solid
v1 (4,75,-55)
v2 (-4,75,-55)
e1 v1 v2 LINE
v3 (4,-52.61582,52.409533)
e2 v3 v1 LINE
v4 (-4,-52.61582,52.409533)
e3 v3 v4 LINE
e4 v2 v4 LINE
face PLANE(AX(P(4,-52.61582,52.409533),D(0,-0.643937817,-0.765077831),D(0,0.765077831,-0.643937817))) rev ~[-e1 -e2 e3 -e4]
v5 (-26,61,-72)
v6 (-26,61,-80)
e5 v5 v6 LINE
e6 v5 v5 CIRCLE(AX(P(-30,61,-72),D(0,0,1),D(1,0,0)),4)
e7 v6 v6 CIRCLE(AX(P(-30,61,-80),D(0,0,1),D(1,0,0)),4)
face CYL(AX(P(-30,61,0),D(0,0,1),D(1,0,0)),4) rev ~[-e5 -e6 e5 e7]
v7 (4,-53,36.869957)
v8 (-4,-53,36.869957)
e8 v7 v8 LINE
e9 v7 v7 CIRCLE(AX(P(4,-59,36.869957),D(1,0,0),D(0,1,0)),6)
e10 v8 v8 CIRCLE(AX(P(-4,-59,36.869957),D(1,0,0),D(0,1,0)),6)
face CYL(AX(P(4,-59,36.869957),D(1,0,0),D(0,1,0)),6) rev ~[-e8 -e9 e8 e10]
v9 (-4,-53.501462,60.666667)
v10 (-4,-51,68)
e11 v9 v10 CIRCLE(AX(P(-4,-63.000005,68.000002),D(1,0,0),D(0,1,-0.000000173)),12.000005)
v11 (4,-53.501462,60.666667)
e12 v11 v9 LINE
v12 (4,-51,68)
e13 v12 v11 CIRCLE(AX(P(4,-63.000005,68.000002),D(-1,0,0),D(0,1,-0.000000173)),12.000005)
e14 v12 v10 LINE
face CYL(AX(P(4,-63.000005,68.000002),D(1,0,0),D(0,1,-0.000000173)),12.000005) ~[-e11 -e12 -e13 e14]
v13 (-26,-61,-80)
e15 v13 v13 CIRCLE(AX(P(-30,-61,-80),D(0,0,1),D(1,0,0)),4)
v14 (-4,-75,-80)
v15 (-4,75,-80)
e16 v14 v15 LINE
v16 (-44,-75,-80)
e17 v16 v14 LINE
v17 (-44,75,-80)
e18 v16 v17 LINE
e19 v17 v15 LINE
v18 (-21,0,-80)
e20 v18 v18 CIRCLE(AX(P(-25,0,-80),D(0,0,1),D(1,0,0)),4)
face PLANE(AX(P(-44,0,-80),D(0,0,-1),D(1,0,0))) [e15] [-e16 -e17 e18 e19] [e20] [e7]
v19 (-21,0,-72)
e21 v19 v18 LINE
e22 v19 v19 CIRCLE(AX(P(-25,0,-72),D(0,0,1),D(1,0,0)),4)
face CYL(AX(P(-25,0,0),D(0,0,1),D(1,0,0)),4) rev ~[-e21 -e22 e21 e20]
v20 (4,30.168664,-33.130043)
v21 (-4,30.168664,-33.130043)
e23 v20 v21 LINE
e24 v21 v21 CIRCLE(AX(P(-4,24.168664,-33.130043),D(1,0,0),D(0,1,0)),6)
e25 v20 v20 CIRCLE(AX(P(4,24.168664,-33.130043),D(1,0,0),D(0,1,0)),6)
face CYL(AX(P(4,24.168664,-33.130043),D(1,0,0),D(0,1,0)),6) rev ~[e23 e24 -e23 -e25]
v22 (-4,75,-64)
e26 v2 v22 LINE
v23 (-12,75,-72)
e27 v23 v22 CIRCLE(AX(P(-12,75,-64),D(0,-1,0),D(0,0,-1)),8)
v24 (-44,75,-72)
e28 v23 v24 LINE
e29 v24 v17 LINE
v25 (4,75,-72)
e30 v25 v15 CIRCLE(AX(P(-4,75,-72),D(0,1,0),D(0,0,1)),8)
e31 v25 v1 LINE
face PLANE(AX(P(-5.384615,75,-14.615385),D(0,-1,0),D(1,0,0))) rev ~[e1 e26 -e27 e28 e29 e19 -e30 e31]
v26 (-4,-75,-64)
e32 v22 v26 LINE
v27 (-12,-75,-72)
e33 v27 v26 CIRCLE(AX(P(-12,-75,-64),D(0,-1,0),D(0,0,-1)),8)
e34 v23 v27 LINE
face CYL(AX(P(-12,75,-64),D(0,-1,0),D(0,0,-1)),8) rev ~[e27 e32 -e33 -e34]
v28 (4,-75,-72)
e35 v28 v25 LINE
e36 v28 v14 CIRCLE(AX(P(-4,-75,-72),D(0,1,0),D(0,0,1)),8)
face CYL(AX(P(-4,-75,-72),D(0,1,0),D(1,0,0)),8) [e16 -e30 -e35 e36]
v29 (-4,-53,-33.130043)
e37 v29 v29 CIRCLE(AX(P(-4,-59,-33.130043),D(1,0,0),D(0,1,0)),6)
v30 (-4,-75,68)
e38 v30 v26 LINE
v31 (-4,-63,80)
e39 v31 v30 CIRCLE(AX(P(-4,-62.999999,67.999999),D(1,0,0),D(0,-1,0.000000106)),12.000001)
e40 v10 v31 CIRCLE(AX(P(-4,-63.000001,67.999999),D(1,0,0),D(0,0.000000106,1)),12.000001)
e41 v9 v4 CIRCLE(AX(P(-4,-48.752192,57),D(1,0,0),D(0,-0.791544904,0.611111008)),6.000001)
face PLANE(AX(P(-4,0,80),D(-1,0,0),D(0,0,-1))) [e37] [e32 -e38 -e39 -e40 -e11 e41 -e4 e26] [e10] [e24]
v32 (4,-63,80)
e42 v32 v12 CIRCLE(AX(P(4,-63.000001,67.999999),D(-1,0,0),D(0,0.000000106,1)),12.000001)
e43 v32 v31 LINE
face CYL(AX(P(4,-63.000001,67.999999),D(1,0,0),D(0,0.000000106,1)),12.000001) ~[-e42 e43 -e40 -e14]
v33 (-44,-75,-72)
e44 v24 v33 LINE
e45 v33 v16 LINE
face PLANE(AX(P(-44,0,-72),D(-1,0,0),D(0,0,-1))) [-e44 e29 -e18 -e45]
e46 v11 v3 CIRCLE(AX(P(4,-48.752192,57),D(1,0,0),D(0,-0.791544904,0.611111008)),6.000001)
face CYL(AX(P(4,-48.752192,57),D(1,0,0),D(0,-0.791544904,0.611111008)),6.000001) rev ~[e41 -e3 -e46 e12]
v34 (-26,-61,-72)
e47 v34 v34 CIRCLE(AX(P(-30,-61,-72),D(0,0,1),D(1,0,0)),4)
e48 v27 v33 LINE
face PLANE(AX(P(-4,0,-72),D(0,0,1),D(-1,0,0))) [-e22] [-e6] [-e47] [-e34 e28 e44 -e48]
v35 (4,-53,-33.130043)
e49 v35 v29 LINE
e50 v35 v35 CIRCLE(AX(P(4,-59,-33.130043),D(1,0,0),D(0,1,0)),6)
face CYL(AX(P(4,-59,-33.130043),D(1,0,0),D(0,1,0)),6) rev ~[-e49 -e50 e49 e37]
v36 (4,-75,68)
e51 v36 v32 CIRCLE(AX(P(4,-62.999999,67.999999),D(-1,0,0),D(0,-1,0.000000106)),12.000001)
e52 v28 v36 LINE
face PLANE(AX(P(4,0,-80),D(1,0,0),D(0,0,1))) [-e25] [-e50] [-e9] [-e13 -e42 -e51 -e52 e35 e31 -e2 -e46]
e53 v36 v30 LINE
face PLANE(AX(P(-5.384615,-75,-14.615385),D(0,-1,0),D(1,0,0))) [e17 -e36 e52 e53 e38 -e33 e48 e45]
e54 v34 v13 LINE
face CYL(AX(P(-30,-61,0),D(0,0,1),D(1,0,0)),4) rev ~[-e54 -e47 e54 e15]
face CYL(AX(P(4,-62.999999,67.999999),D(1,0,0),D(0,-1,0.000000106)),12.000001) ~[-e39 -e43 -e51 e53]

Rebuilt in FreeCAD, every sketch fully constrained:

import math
import FreeCAD as App
import Part
import Sketcher

V = App.Vector
Q = App.Units.Quantity


def edges_at(feature, points):
    """Names of the edges that pass closest to the given points."""
    edges = feature.Shape.Edges
    near = lambda p: min(range(len(edges)), key=lambda i: edges[i].distToShape(Part.Vertex(*p))[0])
    return sorted({f"Edge{near(p) + 1}" for p in points})


def add_polygon(sketch, points):
    """Adds a closed chain of lines whose ends are joined by coincident constraints."""
    first, n = sketch.GeometryCount, len(points)
    for a, b in zip(points, points[1:] + points[:1]):
        sketch.addGeometry(Part.LineSegment(App.Vector(*a, 0), App.Vector(*b, 0)), False)
    for i in range(n):
        sketch.addConstraint(Sketcher.Constraint("Coincident", first + i, 2, first + (i + 1) % n, 1))

doc = App.newDocument("Part")
params = doc.addObject("Spreadsheet::Sheet", "Params")
for row, (alias, value) in enumerate([
    ("sketch1_width", "8 mm"),
    ("sketch1_width2", "40 mm"),
    ("sketch1_height", "152 mm"),
    ("pad1_length", "150 mm"),
    ("fillet_radius", "8 mm"),
    ("sketch2_diameter", "12 mm"),
    ("sketch2_radius", "12.000001 mm"),
    ("sketch2_width", "138 mm"),
    ("sketch2_height", "135 mm"),
    ("sketch3_diameter", "8 mm"),
], start=1):
    params.set(f"A{row}", alias)
    params.set(f"B{row}", "=" + value)
    params.setAlias(f"B{row}", alias)

body = doc.addObject("PartDesign::Body", "Body")

# Sketch on XZ plane
sketch1 = body.newObject("Sketcher::SketchObject", "Sketch")
sketch1.AttachmentSupport = (doc.getObject("XZ_Plane"), [""])
sketch1.MapMode = "FlatFace"
add_polygon(sketch1, [(4, 80), (-4, 80), (-4, -72), (-44, -72), (-44, -80), (4, -80)])  # lines 0-5
sketch1.addConstraint([
    Sketcher.Constraint("Horizontal", 0),
    Sketcher.Constraint("Vertical", 1),
    Sketcher.Constraint("Horizontal", 2),
    Sketcher.Constraint("Vertical", 3),
    Sketcher.Constraint("Horizontal", 4),
    Sketcher.Constraint("Vertical", 5),
    Sketcher.Constraint("Symmetric", 0, 2, 4, 2, -1, 1),
    Sketcher.Constraint("Equal", 0, 3),
    Sketcher.Constraint("DistanceX", 0, 2, 0, 1, Q("8 mm")),
    Sketcher.Constraint("DistanceX", 2, 2, 2, 1, Q("40 mm")),
    Sketcher.Constraint("DistanceY", 1, 2, 1, 1, Q("152 mm")),
])
sketch1.setExpression("Constraints[14]", "Params.sketch1_width")
sketch1.setExpression("Constraints[15]", "Params.sketch1_width2")
sketch1.setExpression("Constraints[16]", "Params.sketch1_height")
pad1 = body.newObject("PartDesign::Pad", "Pad")
pad1.Profile = sketch1
pad1.setExpression("Length", "Params.pad1_length")
pad1.Midplane = True
doc.recompute()

fillet = body.newObject("PartDesign::Fillet", "Fillet")
fillet.Base = (pad1, edges_at(pad1, [(-4, 0, -72), (4, 0, -80)]))
fillet.setExpression("Radius", "Params.fillet_radius")

# Sketch on YZ plane
sketch2 = body.newObject("Sketcher::SketchObject", "Sketch001")
sketch2.AttachmentSupport = (doc.getObject("YZ_Plane"), [""])
sketch2.MapMode = "FlatFace"
sketch2.AttachmentOffset = App.Placement(V(0, 0, 4), App.Rotation())
sketch2.addGeometry([
    Part.ArcOfCircle(Part.Circle(V(-63.000001, 67.999999, 0), V(0, 0, 1), 12.000001), math.radians(0.000006), math.radians(89.999994)),  # 0
    Part.ArcOfCircle(Part.Circle(V(-63.000005, 68.000002, 0), V(0, 0, 1), 12.000005), math.radians(-37.669877), math.radians(-0.00001)),  # 1
    Part.ArcOfCircle(Part.Circle(V(-48.752192, 57, 0), V(0, 0, 1), 6.000001), math.radians(142.33012), math.radians(229.913908)),  # 2
    Part.LineSegment(V(-52.61582, 52.409533, 0), V(75, -55, 0)),  # 3
    Part.LineSegment(V(75, -55, 0), V(75, 80, 0)),  # 4
    Part.LineSegment(V(75, 80, 0), V(-63, 80, 0)),  # 5
    Part.ArcOfCircle(Part.Circle(V(-62.999999, 67.999999, 0), V(0, 0, 1), 12.000001), math.radians(90.000006), math.radians(179.999994)),  # 6
    Part.LineSegment(V(-63, 80, 0), V(-75, 80, 0)),  # 7
    Part.LineSegment(V(-75, 80, 0), V(-75, 68, 0)),  # 8
    Part.Circle(V(-59, 36.869957, 0), V(0, 0, 1), 6),  # 9
    Part.Circle(V(-59, -33.130043, 0), V(0, 0, 1), 6),  # 10
    Part.Circle(V(24.168664, -33.130043, 0), V(0, 0, 1), 6),  # 11
], False)
sketch2.addConstraint([
    Sketcher.Constraint("Tangent", 0, 1, 1, 2),
    Sketcher.Constraint("Tangent", 1, 1, 2, 1),
    Sketcher.Constraint("Tangent", 2, 2, 3, 1),
    Sketcher.Constraint("Coincident", 3, 2, 4, 1),
    Sketcher.Constraint("Coincident", 4, 2, 5, 1),
    Sketcher.Constraint("Tangent", 5, 2, 0, 2),
    Sketcher.Constraint("Tangent", 6, 1, 7, 1),
    Sketcher.Constraint("Coincident", 7, 2, 8, 1),
    Sketcher.Constraint("Tangent", 8, 2, 6, 2),
    Sketcher.Constraint("Vertical", 4),
    Sketcher.Constraint("Horizontal", 5),
    Sketcher.Constraint("Horizontal", 7),
    Sketcher.Constraint("Vertical", 8),
    Sketcher.Constraint("Coincident", 6, 3, 0, 3),
    Sketcher.Constraint("Equal", 0, 6),
    Sketcher.Constraint("Equal", 2, 9),
    Sketcher.Constraint("Equal", 9, 10),
    Sketcher.Constraint("Equal", 10, 11),
    Sketcher.Constraint("Horizontal", 10, 3, 11, 3),
    Sketcher.Constraint("Horizontal", 6, 3, 0, 1),
    Sketcher.Constraint("Vertical", 9, 3, 10, 3),
    Sketcher.Constraint("Diameter", 9, Q("12 mm")),
    Sketcher.Constraint("Radius", 0, Q("12.000001 mm")),
    Sketcher.Constraint("DistanceX", 5, 2, 5, 1, Q("138 mm")),
    Sketcher.Constraint("DistanceY", 4, 1, 4, 2, Q("135 mm")),
    Sketcher.Constraint("DistanceX", 0, 3, -1, 1, Q("63.000001 mm")),
    Sketcher.Constraint("DistanceY", -1, 1, 0, 3, Q("67.999999 mm")),
    Sketcher.Constraint("DistanceY", -1, 1, 2, 3, Q("57 mm")),
    Sketcher.Constraint("DistanceX", 9, 3, -1, 1, Q("59 mm")),
    Sketcher.Constraint("DistanceY", 10, 3, 9, 3, Q("70 mm")),
    Sketcher.Constraint("Radius", 1, Q("12.000005 mm")),
    Sketcher.Constraint("DistanceY", 9, 3, 6, 3, Q("31.130042 mm")),
    Sketcher.Constraint("DistanceX", -1, 1, 11, 3, Q("24.168664 mm")),
])
sketch2.setExpression("Constraints[21]", "Params.sketch2_diameter")
sketch2.setExpression("Constraints[22]", "Params.sketch2_radius")
sketch2.setExpression("Constraints[23]", "Params.sketch2_width")
sketch2.setExpression("Constraints[24]", "Params.sketch2_height")
pocket1 = body.newObject("PartDesign::Pocket", "Pocket")
pocket1.Profile = sketch2
pocket1.Type = "ThroughAll"

# Sketch on XY plane
sketch3 = body.newObject("Sketcher::SketchObject", "Sketch002")
sketch3.AttachmentSupport = (doc.getObject("XY_Plane"), [""])
sketch3.MapMode = "FlatFace"
sketch3.addGeometry([
    Part.Circle(V(-30, -61, 0), V(0, 0, 1), 4),
    Part.Circle(V(-25, 0, 0), V(0, 0, 1), 4),
    Part.Circle(V(-30, 61, 0), V(0, 0, 1), 4),
], False)
sketch3.addConstraint([
    Sketcher.Constraint("Equal", 0, 1),
    Sketcher.Constraint("Equal", 1, 2),
    Sketcher.Constraint("Symmetric", 0, 3, 2, 3, -1),
    Sketcher.Constraint("PointOnObject", 1, 3, -1),
    Sketcher.Constraint("Diameter", 0, Q("8 mm")),
    Sketcher.Constraint("DistanceX", 0, 3, -1, 1, Q("30 mm")),
    Sketcher.Constraint("DistanceY", 0, 3, -1, 1, Q("61 mm")),
    Sketcher.Constraint("DistanceX", 1, 3, -1, 1, Q("25 mm")),
])
sketch3.setExpression("Constraints[4]", "Params.sketch3_diameter")
pocket2 = body.newObject("PartDesign::Pocket", "Pocket001")
pocket2.Profile = sketch3
pocket2.Type = "ThroughAll"

doc.recompute()
